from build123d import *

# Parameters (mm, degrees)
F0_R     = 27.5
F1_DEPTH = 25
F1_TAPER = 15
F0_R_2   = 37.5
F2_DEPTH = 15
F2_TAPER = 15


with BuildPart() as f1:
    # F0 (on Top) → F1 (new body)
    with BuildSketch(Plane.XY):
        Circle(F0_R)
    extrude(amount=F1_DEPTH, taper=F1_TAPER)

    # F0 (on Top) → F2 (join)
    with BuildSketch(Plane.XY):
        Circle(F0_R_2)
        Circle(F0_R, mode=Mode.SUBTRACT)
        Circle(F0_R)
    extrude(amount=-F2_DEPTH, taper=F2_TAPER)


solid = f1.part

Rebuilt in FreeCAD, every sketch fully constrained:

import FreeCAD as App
import Part
import Sketcher
Q = App.Units.Quantity

doc = App.newDocument("Part")
body = doc.addObject("PartDesign::Body", "Body")

# Sketch on XY plane
sketch1 = body.newObject("Sketcher::SketchObject", "Sketch")
sketch1.AttachmentSupport = (doc.getObject("XY_Plane"), [""])
sketch1.MapMode = "FlatFace"
sketch1.addGeometry(Part.Circle(App.Vector(0, 0, 0), App.Vector(0, 0, 1), 28), False)
sketch1.addConstraint([
    Sketcher.Constraint("Coincident", 0, 3, -1, 1),
    Sketcher.Constraint("Diameter", 0, Q("55 mm")),
])
pad1 = body.newObject("PartDesign::Pad", "Pad")
pad1.Profile = sketch1
pad1.Length = 25
pad1.TaperAngle = -15

# Sketch on XY plane
sketch2 = body.newObject("Sketcher::SketchObject", "Sketch001")
sketch2.AttachmentSupport = (doc.getObject("XY_Plane"), [""])
sketch2.MapMode = "FlatFace"
sketch2.addGeometry(Part.Circle(App.Vector(0, 0, 0), App.Vector(0, 0, 1), 38), False)
sketch2.addConstraint([
    Sketcher.Constraint("Coincident", 0, 3, -1, 1),
    Sketcher.Constraint("Diameter", 0, Q("75 mm")),
])
pad2 = body.newObject("PartDesign::Pad", "Pad001")
pad2.Profile = sketch2
pad2.Length = 15
pad2.Reversed = True
pad2.TaperAngle = -15

doc.recompute()
